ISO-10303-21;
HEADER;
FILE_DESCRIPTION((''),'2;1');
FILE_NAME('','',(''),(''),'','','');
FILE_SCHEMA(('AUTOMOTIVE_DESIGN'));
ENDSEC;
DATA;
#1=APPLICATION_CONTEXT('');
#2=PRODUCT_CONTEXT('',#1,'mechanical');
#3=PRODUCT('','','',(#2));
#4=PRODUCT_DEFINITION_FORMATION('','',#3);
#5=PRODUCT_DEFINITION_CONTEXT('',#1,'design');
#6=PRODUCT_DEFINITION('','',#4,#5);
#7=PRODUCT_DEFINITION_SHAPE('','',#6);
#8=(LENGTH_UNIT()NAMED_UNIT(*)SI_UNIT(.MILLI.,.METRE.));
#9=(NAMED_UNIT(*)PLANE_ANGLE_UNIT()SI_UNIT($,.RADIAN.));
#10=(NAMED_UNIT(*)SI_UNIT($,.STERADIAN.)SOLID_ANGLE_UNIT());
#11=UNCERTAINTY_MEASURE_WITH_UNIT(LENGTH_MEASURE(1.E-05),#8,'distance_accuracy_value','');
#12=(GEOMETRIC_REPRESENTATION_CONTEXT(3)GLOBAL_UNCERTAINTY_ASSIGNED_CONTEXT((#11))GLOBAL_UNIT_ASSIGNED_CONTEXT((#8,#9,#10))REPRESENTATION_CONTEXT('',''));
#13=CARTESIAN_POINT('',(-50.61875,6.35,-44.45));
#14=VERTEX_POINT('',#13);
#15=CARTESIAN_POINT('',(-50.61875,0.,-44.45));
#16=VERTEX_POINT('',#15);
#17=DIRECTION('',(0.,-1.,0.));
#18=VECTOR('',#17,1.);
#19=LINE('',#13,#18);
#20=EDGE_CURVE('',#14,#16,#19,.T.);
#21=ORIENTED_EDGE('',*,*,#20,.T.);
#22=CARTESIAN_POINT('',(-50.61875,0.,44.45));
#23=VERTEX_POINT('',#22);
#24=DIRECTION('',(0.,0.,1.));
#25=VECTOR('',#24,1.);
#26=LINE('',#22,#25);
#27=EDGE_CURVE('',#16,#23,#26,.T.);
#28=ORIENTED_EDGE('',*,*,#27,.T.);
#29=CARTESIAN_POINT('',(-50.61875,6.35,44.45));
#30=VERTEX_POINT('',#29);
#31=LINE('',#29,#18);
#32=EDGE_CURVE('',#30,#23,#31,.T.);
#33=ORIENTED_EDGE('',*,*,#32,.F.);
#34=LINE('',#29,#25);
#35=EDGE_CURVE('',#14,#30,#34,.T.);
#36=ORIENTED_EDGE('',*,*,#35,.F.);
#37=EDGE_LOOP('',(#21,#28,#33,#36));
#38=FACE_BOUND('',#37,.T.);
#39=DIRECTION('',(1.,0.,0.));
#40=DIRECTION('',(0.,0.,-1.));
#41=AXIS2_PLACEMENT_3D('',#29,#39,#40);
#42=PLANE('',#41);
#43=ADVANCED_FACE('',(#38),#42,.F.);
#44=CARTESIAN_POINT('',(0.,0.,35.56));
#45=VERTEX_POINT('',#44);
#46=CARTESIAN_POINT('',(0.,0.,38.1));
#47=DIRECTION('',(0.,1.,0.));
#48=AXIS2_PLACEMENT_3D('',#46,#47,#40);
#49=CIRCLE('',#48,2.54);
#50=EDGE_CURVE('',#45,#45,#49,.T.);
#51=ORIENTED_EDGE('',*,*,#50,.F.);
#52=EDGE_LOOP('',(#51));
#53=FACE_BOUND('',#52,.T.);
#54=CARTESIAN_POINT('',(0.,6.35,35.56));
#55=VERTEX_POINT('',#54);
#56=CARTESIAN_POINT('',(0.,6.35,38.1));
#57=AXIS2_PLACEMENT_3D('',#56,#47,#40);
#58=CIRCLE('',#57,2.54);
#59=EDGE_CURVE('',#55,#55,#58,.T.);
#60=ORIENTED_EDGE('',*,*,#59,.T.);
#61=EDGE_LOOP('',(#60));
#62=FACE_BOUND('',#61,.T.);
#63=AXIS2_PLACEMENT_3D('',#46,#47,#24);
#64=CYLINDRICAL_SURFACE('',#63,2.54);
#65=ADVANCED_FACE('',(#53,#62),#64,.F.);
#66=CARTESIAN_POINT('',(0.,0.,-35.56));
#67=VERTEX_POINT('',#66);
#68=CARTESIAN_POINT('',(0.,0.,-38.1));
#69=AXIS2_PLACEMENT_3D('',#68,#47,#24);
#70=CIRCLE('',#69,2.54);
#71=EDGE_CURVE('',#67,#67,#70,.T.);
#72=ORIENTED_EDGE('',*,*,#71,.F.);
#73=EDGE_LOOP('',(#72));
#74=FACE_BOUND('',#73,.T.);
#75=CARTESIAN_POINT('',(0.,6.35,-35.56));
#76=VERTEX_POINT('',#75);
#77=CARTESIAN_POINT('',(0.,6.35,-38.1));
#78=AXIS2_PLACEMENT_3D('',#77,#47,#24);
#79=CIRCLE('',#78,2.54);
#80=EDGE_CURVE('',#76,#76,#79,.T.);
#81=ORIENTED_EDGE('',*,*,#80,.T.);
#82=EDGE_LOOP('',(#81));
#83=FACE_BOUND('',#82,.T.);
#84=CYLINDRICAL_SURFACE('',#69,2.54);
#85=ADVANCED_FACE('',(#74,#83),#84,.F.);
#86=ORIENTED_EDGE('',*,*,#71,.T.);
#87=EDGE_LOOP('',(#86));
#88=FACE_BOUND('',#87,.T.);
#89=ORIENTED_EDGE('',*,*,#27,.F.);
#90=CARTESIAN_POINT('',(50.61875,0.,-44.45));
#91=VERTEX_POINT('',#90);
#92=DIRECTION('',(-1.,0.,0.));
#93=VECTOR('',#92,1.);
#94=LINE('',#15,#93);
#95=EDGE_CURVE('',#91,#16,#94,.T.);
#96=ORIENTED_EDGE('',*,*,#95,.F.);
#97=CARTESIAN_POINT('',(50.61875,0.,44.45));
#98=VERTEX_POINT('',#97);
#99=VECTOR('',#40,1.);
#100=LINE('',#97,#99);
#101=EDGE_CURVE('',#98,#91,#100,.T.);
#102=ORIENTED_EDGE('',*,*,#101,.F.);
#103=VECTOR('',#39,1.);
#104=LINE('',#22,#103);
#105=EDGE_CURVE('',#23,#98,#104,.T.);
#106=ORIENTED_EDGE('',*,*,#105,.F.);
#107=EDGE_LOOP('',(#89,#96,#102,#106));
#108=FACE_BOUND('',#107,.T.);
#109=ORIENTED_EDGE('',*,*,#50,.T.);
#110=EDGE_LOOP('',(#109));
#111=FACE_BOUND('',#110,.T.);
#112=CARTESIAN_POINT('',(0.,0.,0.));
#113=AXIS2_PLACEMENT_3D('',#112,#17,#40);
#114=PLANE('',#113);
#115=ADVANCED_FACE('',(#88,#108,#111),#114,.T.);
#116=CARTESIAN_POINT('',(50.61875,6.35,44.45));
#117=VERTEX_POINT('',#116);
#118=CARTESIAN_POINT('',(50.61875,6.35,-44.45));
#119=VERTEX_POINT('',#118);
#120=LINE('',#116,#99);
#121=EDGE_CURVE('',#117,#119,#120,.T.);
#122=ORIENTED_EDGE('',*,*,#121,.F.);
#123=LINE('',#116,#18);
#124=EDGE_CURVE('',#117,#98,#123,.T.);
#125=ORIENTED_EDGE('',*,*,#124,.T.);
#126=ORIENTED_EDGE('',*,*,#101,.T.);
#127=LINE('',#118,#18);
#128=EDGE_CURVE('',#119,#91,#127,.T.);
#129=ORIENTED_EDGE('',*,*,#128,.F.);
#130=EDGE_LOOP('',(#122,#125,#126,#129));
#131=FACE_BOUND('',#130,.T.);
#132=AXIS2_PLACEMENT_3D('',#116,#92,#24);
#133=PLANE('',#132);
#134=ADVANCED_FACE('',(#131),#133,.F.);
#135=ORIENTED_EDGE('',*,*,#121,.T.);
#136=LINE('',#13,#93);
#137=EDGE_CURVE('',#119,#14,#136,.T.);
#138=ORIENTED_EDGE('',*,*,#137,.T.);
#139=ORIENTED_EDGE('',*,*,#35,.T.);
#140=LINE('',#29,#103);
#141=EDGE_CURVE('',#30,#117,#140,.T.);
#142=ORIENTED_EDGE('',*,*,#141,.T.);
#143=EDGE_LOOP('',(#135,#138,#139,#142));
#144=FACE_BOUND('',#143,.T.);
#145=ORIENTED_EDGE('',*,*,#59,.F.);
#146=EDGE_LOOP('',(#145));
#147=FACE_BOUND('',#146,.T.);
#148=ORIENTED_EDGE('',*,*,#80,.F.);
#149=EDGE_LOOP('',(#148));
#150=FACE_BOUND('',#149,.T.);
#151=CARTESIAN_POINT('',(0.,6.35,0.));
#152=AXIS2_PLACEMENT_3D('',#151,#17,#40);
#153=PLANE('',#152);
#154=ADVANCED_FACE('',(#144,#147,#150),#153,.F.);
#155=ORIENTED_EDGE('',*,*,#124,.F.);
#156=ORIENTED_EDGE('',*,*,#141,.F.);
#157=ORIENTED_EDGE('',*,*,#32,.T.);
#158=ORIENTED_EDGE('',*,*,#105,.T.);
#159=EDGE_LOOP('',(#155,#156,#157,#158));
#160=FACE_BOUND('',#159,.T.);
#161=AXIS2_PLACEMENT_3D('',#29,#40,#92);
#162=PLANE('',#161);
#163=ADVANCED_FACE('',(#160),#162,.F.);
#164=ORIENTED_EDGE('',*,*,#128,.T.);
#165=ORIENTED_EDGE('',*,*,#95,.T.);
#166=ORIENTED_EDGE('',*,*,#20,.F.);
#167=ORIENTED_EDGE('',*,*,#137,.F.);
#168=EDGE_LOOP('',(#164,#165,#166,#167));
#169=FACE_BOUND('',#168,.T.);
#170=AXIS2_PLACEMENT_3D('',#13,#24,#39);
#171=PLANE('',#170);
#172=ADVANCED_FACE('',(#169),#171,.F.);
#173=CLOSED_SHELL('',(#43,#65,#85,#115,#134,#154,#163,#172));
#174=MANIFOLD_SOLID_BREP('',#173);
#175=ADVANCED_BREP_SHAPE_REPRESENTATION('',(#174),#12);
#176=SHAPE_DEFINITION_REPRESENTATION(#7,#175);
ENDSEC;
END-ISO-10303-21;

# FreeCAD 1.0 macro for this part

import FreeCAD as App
import Part
import Sketcher
from FreeCAD import Vector
Q = App.Units.Quantity

doc = App.newDocument("Part")
params = doc.addObject("Spreadsheet::Sheet", "Params")
for row, (alias, value) in enumerate([
    ("sketch1_height", "3.5 in"),
    ("pad1_length", "0.25 in"),
    ("sketch2_diameter", "0.2 in"),
], start=1):
    params.set(f"A{row}", alias)
    params.set(f"B{row}", "=" + value)
    params.setAlias(f"B{row}", alias)

body = doc.addObject("PartDesign::Body", "Body")

# Sketch on XZ plane
sketch1 = body.newObject("Sketcher::SketchObject", "Sketch")
sketch1.AttachmentSupport = (doc.getObject("XZ_Plane"), [""])
sketch1.MapMode = "FlatFace"
sketch1.addGeometry([
    Part.LineSegment(Vector(-51, -44, 0), Vector(-51, 44, 0)),
    Part.LineSegment(Vector(-51, 44, 0), Vector(51, 44, 0)),
    Part.LineSegment(Vector(51, 44, 0), Vector(51, -44, 0)),
    Part.LineSegment(Vector(51, -44, 0), Vector(-51, -44, 0)),
], False)
sketch1.addConstraint([
    Sketcher.Constraint("Coincident", 0, 2, 1, 1),
    Sketcher.Constraint("Coincident", 1, 2, 2, 1),
    Sketcher.Constraint("Coincident", 2, 2, 3, 1),
    Sketcher.Constraint("Coincident", 3, 2, 0, 1),
    Sketcher.Constraint("Vertical", 0),
    Sketcher.Constraint("Horizontal", 1),
    Sketcher.Constraint("Vertical", 2),
    Sketcher.Constraint("Horizontal", 3),
    Sketcher.Constraint("Symmetric", 0, 2, 2, 2, -1, 1),
    Sketcher.Constraint("DistanceY", 0, 1, 0, 2, Q("3.5 in")),
    Sketcher.Constraint("DistanceX", 1, 1, 1, 2, 101.2375),
])
sketch1.setExpression("Constraints[9]", "Params.sketch1_height")
pad1 = body.newObject("PartDesign::Pad", "Pad")
pad1.Profile = sketch1
pad1.setExpression("Length", "Params.pad1_length")
pad1.Reversed = True

# Sketch on XZ plane
sketch2 = body.newObject("Sketcher::SketchObject", "Sketch001")
sketch2.AttachmentSupport = (doc.getObject("XZ_Plane"), [""])
sketch2.MapMode = "FlatFace"
sketch2.AttachmentOffset = App.Placement(Vector(0, 0, -0.25 * 25.4), App.Rotation())
sketch2.addGeometry([
    Part.Circle(Vector(0, -38.1, 0), Vector(0, 0, 1), 2.5),
    Part.Circle(Vector(0, 38.1, 0), Vector(0, 0, 1), 2.5),
], False)
sketch2.addConstraint([
    Sketcher.Constraint("Equal", 0, 1),
    Sketcher.Constraint("Symmetric", 0, 3, 1, 3, -1, 1),
    Sketcher.Constraint("PointOnObject", 0, 3, -2),
    Sketcher.Constraint("Diameter", 0, Q("0.2 in")),
    Sketcher.Constraint("DistanceY", 0, 3, 1, 3, Q("3 in")),
])
sketch2.setExpression("Constraints[3]", "Params.sketch2_diameter")
pocket1 = body.newObject("PartDesign::Pocket", "Pocket")
pocket1.Profile = sketch2
pocket1.Type = "ThroughAll"
pocket1.Reversed = True

doc.recompute()
